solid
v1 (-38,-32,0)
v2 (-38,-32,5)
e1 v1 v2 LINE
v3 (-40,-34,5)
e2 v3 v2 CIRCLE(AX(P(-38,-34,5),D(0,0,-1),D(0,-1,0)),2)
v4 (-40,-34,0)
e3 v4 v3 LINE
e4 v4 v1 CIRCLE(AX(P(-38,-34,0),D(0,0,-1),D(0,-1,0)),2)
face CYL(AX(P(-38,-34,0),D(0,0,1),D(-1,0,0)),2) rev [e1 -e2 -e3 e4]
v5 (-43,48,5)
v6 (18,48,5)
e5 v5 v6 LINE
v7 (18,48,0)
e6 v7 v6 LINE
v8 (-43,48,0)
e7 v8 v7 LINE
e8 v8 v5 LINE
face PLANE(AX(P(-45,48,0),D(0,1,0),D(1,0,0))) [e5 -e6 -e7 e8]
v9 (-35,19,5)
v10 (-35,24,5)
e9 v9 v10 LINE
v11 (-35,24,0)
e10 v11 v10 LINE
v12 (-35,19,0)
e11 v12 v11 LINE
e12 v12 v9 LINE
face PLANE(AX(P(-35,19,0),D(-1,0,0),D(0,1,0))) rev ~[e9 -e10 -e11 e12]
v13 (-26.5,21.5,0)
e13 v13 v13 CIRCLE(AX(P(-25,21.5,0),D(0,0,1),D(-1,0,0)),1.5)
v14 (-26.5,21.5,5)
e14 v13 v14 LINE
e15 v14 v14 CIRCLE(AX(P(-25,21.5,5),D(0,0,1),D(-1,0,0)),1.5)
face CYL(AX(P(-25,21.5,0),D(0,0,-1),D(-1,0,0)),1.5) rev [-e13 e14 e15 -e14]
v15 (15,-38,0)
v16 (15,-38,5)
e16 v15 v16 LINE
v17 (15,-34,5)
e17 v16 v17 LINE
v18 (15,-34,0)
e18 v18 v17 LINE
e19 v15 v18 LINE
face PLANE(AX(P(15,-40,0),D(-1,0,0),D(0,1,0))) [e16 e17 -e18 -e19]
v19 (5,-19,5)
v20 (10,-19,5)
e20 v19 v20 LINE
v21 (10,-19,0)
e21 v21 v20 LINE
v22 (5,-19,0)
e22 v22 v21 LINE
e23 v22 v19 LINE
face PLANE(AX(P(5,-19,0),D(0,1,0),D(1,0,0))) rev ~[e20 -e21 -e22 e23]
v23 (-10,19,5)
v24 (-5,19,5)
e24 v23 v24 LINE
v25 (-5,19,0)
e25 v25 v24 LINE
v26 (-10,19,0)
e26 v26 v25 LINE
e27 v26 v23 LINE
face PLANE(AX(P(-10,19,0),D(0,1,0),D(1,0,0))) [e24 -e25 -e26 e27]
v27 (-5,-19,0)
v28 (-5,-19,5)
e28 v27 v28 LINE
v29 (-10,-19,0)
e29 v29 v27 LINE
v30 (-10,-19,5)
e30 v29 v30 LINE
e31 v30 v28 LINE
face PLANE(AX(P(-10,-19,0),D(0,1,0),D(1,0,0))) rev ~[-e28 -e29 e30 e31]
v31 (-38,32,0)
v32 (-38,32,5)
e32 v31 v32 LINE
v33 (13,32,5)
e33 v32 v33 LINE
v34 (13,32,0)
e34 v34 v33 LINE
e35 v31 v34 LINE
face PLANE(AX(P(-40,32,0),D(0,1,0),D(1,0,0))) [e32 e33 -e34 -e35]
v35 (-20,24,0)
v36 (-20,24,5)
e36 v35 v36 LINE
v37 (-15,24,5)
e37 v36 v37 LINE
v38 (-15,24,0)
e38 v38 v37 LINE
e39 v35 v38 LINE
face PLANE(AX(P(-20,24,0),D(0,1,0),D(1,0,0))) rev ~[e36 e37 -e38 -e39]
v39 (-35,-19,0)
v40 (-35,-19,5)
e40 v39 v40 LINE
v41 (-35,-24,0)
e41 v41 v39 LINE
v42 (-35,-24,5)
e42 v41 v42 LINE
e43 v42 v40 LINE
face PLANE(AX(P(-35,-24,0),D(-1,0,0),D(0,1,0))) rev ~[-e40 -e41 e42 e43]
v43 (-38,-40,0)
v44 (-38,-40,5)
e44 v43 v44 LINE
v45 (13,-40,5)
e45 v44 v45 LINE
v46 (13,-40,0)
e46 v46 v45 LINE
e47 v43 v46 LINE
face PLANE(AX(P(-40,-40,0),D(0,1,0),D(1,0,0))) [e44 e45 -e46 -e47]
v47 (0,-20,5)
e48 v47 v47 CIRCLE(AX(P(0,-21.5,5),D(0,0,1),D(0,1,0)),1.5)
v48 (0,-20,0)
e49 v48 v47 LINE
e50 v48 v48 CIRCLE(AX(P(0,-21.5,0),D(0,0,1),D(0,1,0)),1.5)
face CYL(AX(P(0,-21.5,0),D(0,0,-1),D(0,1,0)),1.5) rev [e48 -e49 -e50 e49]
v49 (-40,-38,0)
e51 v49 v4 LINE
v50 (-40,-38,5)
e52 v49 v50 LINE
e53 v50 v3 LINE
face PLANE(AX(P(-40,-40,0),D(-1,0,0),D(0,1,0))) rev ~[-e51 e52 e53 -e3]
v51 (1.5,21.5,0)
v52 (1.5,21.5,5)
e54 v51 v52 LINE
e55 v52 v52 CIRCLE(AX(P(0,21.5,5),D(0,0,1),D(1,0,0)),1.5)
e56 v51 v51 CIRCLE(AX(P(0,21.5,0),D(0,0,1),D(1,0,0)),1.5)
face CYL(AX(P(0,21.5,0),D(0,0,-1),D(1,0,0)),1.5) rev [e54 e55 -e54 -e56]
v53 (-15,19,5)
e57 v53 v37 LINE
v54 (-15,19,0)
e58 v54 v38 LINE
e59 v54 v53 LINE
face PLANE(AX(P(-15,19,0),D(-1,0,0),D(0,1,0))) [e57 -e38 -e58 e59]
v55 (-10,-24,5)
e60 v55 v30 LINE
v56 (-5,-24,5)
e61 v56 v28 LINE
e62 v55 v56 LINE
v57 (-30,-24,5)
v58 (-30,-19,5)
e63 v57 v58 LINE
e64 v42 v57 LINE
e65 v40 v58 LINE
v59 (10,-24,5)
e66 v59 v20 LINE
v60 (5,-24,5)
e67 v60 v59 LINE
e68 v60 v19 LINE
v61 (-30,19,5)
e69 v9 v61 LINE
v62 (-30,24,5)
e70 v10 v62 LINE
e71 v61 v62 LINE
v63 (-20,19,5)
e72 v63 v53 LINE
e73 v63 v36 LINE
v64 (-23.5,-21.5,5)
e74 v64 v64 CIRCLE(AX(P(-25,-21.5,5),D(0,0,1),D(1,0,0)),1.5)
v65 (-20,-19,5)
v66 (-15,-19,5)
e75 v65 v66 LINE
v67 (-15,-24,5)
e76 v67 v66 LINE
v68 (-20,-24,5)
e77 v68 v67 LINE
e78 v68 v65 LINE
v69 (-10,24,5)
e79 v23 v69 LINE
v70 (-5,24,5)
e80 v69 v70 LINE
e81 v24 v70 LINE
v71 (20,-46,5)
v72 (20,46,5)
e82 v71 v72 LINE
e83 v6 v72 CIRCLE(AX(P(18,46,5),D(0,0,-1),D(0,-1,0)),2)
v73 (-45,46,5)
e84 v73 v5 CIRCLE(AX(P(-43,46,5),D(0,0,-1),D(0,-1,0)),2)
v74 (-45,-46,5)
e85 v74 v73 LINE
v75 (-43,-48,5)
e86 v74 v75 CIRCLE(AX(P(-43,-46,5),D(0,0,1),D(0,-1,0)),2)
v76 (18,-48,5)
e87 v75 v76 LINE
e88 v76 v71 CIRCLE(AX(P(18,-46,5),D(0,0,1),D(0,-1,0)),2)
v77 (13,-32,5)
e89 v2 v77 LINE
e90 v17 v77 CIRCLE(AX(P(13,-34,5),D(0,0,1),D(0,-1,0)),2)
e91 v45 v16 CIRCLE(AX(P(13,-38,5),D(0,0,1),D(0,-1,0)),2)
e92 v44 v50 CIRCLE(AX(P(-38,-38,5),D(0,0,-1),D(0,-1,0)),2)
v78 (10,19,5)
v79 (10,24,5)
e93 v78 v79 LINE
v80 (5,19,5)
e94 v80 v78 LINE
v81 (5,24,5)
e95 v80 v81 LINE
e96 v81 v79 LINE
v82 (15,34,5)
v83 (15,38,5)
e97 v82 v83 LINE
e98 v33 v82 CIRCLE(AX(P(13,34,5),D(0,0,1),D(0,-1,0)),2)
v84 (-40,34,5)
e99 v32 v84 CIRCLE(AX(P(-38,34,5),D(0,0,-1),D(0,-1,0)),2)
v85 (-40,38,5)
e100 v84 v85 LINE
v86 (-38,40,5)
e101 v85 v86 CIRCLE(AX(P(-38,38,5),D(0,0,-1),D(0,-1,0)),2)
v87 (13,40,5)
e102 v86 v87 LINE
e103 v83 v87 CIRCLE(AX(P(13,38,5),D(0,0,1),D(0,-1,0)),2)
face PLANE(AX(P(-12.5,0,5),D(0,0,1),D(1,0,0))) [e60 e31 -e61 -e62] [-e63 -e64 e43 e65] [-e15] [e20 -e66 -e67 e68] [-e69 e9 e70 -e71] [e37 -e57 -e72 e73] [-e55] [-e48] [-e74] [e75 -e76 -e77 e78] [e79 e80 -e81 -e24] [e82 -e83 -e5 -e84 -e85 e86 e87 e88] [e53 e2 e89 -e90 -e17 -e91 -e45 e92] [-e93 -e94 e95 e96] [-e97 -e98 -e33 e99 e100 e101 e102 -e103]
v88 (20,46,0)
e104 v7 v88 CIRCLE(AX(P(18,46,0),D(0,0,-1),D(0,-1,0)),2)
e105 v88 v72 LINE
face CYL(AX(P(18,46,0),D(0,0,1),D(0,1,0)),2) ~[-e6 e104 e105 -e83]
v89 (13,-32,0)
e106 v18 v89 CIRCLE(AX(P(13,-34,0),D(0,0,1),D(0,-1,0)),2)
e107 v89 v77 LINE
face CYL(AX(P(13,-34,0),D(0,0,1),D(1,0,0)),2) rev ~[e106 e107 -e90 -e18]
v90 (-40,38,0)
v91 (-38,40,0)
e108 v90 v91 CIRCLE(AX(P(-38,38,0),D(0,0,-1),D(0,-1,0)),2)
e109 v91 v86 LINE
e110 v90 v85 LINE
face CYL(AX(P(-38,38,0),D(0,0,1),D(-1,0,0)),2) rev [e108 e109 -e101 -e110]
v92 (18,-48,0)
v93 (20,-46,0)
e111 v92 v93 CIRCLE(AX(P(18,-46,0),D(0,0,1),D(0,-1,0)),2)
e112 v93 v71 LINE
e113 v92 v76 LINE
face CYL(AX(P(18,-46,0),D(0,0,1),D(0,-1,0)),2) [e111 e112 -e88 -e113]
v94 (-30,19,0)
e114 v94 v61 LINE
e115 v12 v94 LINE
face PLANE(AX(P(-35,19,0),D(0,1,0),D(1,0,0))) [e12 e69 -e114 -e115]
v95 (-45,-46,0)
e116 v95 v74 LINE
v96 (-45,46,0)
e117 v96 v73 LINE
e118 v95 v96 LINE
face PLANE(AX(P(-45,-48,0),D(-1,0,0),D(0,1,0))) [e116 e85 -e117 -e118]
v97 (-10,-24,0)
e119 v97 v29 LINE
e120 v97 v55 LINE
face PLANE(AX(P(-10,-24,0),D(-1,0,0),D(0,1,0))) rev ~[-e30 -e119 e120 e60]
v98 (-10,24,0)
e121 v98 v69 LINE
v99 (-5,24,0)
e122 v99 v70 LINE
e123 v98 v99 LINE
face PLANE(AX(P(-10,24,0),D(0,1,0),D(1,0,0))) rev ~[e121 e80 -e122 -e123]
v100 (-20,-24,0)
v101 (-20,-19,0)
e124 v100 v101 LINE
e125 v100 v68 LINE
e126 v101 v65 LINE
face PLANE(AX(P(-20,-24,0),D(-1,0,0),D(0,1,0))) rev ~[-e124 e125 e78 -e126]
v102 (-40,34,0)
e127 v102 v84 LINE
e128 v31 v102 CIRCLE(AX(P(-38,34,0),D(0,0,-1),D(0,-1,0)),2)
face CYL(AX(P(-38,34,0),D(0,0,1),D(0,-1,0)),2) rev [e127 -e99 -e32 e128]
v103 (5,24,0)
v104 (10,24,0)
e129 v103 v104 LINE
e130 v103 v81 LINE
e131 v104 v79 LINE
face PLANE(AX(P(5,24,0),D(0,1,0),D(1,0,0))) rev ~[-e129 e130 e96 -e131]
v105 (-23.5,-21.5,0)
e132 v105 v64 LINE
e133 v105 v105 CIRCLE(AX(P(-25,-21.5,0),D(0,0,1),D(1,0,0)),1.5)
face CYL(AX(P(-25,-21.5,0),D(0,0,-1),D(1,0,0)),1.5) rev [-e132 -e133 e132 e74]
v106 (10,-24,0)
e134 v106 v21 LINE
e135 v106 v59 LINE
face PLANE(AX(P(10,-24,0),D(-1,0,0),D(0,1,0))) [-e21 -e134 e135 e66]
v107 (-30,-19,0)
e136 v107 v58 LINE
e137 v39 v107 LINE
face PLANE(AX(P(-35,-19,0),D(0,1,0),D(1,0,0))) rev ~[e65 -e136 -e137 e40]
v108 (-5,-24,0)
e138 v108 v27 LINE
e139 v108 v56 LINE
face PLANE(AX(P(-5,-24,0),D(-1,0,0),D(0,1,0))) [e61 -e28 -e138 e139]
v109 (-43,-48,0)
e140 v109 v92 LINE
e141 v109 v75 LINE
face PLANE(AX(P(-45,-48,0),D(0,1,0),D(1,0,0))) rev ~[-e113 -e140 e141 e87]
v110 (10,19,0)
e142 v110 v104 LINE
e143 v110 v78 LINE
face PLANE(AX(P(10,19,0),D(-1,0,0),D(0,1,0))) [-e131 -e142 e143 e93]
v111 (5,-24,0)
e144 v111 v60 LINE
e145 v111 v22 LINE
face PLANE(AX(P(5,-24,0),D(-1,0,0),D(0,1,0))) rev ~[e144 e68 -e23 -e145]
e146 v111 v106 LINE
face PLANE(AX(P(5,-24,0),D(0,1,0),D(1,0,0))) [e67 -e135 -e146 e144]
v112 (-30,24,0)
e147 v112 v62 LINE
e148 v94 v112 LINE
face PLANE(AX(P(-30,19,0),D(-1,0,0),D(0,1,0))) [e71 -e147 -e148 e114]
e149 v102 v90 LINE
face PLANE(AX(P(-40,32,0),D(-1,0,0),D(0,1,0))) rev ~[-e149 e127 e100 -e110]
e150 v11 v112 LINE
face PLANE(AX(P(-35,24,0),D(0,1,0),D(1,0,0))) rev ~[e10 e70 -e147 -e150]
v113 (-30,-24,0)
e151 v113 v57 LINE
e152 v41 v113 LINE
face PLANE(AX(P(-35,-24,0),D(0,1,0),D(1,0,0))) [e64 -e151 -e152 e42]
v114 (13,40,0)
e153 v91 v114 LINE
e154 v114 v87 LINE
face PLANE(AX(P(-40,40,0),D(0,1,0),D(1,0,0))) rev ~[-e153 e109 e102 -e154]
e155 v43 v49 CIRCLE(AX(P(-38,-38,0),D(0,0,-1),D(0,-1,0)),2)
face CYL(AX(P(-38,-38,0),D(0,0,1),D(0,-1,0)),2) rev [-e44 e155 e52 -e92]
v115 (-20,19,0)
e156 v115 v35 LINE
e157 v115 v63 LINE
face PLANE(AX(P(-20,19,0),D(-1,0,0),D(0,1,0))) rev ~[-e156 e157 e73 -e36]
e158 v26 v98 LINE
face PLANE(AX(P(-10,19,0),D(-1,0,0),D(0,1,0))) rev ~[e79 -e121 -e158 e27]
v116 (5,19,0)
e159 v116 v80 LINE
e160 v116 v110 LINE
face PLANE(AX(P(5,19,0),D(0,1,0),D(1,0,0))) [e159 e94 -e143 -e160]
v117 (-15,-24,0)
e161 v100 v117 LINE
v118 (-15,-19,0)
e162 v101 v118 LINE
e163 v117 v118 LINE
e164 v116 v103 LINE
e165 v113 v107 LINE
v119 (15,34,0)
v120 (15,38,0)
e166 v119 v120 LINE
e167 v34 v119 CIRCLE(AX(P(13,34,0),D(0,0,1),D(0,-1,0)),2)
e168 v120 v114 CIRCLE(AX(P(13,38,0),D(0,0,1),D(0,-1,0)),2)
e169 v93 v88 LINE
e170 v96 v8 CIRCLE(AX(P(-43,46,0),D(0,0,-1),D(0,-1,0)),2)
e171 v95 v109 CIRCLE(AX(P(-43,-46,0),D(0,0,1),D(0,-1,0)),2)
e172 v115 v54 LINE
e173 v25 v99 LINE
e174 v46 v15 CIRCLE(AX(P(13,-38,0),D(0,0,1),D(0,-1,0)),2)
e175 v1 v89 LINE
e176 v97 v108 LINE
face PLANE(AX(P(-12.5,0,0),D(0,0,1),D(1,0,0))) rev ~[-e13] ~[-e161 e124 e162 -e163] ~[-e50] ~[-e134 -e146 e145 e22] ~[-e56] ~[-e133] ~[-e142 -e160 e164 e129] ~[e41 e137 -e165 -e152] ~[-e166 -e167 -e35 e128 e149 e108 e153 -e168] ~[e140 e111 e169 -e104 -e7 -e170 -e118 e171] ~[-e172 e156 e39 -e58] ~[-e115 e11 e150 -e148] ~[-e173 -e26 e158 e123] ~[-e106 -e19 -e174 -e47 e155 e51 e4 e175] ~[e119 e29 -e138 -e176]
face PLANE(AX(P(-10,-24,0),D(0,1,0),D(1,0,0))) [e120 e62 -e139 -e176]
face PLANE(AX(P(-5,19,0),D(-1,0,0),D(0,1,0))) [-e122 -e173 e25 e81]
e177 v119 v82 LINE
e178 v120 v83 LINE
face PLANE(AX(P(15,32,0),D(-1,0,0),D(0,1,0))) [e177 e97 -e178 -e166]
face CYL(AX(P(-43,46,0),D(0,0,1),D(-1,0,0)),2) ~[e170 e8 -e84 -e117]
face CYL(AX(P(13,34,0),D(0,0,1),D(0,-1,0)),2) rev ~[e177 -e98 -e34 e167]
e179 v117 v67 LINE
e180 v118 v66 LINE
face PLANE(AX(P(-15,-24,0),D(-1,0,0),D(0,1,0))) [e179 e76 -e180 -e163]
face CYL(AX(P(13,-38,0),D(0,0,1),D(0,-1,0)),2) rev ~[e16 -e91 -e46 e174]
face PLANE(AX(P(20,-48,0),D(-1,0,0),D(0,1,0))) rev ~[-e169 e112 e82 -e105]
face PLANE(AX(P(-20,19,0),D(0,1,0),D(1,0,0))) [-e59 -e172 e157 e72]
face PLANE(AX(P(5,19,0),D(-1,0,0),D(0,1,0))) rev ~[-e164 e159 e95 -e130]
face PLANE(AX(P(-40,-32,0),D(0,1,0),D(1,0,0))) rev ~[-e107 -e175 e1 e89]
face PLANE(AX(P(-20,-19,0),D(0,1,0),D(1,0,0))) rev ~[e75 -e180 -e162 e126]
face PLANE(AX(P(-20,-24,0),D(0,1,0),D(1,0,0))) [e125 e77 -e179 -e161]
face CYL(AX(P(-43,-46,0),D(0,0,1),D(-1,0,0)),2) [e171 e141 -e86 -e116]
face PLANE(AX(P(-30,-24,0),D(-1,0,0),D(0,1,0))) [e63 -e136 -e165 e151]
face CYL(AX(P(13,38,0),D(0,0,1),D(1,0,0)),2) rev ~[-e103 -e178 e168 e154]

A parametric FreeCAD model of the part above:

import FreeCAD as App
import Part
import Sketcher
from FreeCAD import Vector
Q = App.Units.Quantity


def edges_at(feature, points):
    """Names of the edges that pass closest to the given points."""
    edges = feature.Shape.Edges
    near = lambda p: min(range(len(edges)), key=lambda i: edges[i].distToShape(Part.Vertex(*p))[0])
    return sorted({f"Edge{near(p) + 1}" for p in points})

doc = App.newDocument("Part")
body = doc.addObject("PartDesign::Body", "Body")

# Sketch on XY plane
sketch1 = body.newObject("Sketcher::SketchObject", "Sketch")
sketch1.AttachmentSupport = (doc.getObject("XY_Plane"), [""])
sketch1.MapMode = "FlatFace"
sketch1.addGeometry([
    Part.LineSegment(Vector(-45, 48, 0), Vector(-45, -48, 0)),  # 0
    Part.LineSegment(Vector(-45, -48, 0), Vector(20, -48, 0)),  # 1
    Part.LineSegment(Vector(20, -48, 0), Vector(20, 48, 0)),  # 2
    Part.LineSegment(Vector(20, 48, 0), Vector(-45, 48, 0)),  # 3
    Part.LineSegment(Vector(-30, -24, 0), Vector(-35, -24, 0)),  # 4
    Part.LineSegment(Vector(-35, -24, 0), Vector(-35, -19, 0)),  # 5
    Part.LineSegment(Vector(-35, -19, 0), Vector(-30, -19, 0)),  # 6
    Part.LineSegment(Vector(-30, -19, 0), Vector(-30, -24, 0)),  # 7
    Part.Circle(Vector(-25, -21.5, 0), Vector(0, 0, 1), 1.5),  # 8
    Part.LineSegment(Vector(-15, -24, 0), Vector(-20, -24, 0)),  # 9
    Part.LineSegment(Vector(-20, -24, 0), Vector(-20, -19, 0)),  # 10
    Part.LineSegment(Vector(-20, -19, 0), Vector(-15, -19, 0)),  # 11
    Part.LineSegment(Vector(-15, -19, 0), Vector(-15, -24, 0)),  # 12
    Part.LineSegment(Vector(15, -40, 0), Vector(-40, -40, 0)),  # 13
    Part.LineSegment(Vector(-40, -40, 0), Vector(-40, -32, 0)),  # 14
    Part.LineSegment(Vector(-40, -32, 0), Vector(15, -32, 0)),  # 15
    Part.LineSegment(Vector(15, -32, 0), Vector(15, -40, 0)),  # 16
    Part.LineSegment(Vector(-5, -24, 0), Vector(-10, -24, 0)),  # 17
    Part.LineSegment(Vector(-10, -24, 0), Vector(-10, -19, 0)),  # 18
    Part.LineSegment(Vector(-10, -19, 0), Vector(-5, -19, 0)),  # 19
    Part.LineSegment(Vector(-5, -19, 0), Vector(-5, -24, 0)),  # 20
    Part.Circle(Vector(0, -21.5, 0), Vector(0, 0, 1), 1.5),  # 21
    Part.LineSegment(Vector(10, -24, 0), Vector(5, -24, 0)),  # 22
    Part.LineSegment(Vector(5, -24, 0), Vector(5, -19, 0)),  # 23
    Part.LineSegment(Vector(5, -19, 0), Vector(10, -19, 0)),  # 24
    Part.LineSegment(Vector(10, -19, 0), Vector(10, -24, 0)),  # 25
    Part.LineSegment(Vector(-30, 19, 0), Vector(-35, 19, 0)),  # 26
    Part.LineSegment(Vector(-35, 19, 0), Vector(-35, 24, 0)),  # 27
    Part.LineSegment(Vector(-35, 24, 0), Vector(-30, 24, 0)),  # 28
    Part.LineSegment(Vector(-30, 24, 0), Vector(-30, 19, 0)),  # 29
    Part.Circle(Vector(-25, 21.5, 0), Vector(0, 0, 1), 1.5),  # 30
    Part.LineSegment(Vector(-15, 19, 0), Vector(-20, 19, 0)),  # 31
    Part.LineSegment(Vector(-20, 19, 0), Vector(-20, 24, 0)),  # 32
    Part.LineSegment(Vector(-20, 24, 0), Vector(-15, 24, 0)),  # 33
    Part.LineSegment(Vector(-15, 24, 0), Vector(-15, 19, 0)),  # 34
    Part.LineSegment(Vector(-5, 19, 0), Vector(-10, 19, 0)),  # 35
    Part.LineSegment(Vector(-10, 19, 0), Vector(-10, 24, 0)),  # 36
    Part.LineSegment(Vector(-10, 24, 0), Vector(-5, 24, 0)),  # 37
    Part.LineSegment(Vector(-5, 24, 0), Vector(-5, 19, 0)),  # 38
    Part.Circle(Vector(0, 21.5, 0), Vector(0, 0, 1), 1.5),  # 39
    Part.LineSegment(Vector(15, 32, 0), Vector(-40, 32, 0)),  # 40
    Part.LineSegment(Vector(-40, 32, 0), Vector(-40, 40, 0)),  # 41
    Part.LineSegment(Vector(-40, 40, 0), Vector(15, 40, 0)),  # 42
    Part.LineSegment(Vector(15, 40, 0), Vector(15, 32, 0)),  # 43
    Part.LineSegment(Vector(10, 19, 0), Vector(5, 19, 0)),  # 44
    Part.LineSegment(Vector(5, 19, 0), Vector(5, 24, 0)),  # 45
    Part.LineSegment(Vector(5, 24, 0), Vector(10, 24, 0)),  # 46
    Part.LineSegment(Vector(10, 24, 0), Vector(10, 19, 0)),  # 47
], False)
sketch1.addConstraint([
    Sketcher.Constraint("Coincident", 0, 2, 1, 1),
    Sketcher.Constraint("Coincident", 1, 2, 2, 1),
    Sketcher.Constraint("Coincident", 2, 2, 3, 1),
    Sketcher.Constraint("Coincident", 3, 2, 0, 1),
    Sketcher.Constraint("Coincident", 4, 2, 5, 1),
    Sketcher.Constraint("Coincident", 5, 2, 6, 1),
    Sketcher.Constraint("Coincident", 6, 2, 7, 1),
    Sketcher.Constraint("Coincident", 7, 2, 4, 1),
    Sketcher.Constraint("Coincident", 9, 2, 10, 1),
    Sketcher.Constraint("Coincident", 10, 2, 11, 1),
    Sketcher.Constraint("Coincident", 11, 2, 12, 1),
    Sketcher.Constraint("Coincident", 12, 2, 9, 1),
    Sketcher.Constraint("Coincident", 13, 2, 14, 1),
    Sketcher.Constraint("Coincident", 14, 2, 15, 1),
    Sketcher.Constraint("Coincident", 15, 2, 16, 1),
    Sketcher.Constraint("Coincident", 16, 2, 13, 1),
    Sketcher.Constraint("Coincident", 17, 2, 18, 1),
    Sketcher.Constraint("Coincident", 18, 2, 19, 1),
    Sketcher.Constraint("Coincident", 19, 2, 20, 1),
    Sketcher.Constraint("Coincident", 20, 2, 17, 1),
    Sketcher.Constraint("Coincident", 22, 2, 23, 1),
    Sketcher.Constraint("Coincident", 23, 2, 24, 1),
    Sketcher.Constraint("Coincident", 24, 2, 25, 1),
    Sketcher.Constraint("Coincident", 25, 2, 22, 1),
    Sketcher.Constraint("Coincident", 26, 2, 27, 1),
    Sketcher.Constraint("Coincident", 27, 2, 28, 1),
    Sketcher.Constraint("Coincident", 28, 2, 29, 1),
    Sketcher.Constraint("Coincident", 29, 2, 26, 1),
    Sketcher.Constraint("Coincident", 31, 2, 32, 1),
    Sketcher.Constraint("Coincident", 32, 2, 33, 1),
    Sketcher.Constraint("Coincident", 33, 2, 34, 1),
    Sketcher.Constraint("Coincident", 34, 2, 31, 1),
    Sketcher.Constraint("Coincident", 35, 2, 36, 1),
    Sketcher.Constraint("Coincident", 36, 2, 37, 1),
    Sketcher.Constraint("Coincident", 37, 2, 38, 1),
    Sketcher.Constraint("Coincident", 38, 2, 35, 1),
    Sketcher.Constraint("Coincident", 40, 2, 41, 1),
    Sketcher.Constraint("Coincident", 41, 2, 42, 1),
    Sketcher.Constraint("Coincident", 42, 2, 43, 1),
    Sketcher.Constraint("Coincident", 43, 2, 40, 1),
    Sketcher.Constraint("Coincident", 44, 2, 45, 1),
    Sketcher.Constraint("Coincident", 45, 2, 46, 1),
    Sketcher.Constraint("Coincident", 46, 2, 47, 1),
    Sketcher.Constraint("Coincident", 47, 2, 44, 1),
    Sketcher.Constraint("Vertical", 0),
    Sketcher.Constraint("Horizontal", 1),
    Sketcher.Constraint("Vertical", 2),
    Sketcher.Constraint("Horizontal", 3),
    Sketcher.Constraint("Horizontal", 4),
    Sketcher.Constraint("Vertical", 5),
    Sketcher.Constraint("Horizontal", 6),
    Sketcher.Constraint("Vertical", 7),
    Sketcher.Constraint("Horizontal", 9),
    Sketcher.Constraint("Vertical", 10),
    Sketcher.Constraint("Horizontal", 11),
    Sketcher.Constraint("Vertical", 12),
    Sketcher.Constraint("Horizontal", 13),
    Sketcher.Constraint("Vertical", 14),
    Sketcher.Constraint("Horizontal", 15),
    Sketcher.Constraint("Vertical", 16),
    Sketcher.Constraint("Horizontal", 17),
    Sketcher.Constraint("Vertical", 18),
    Sketcher.Constraint("Horizontal", 19),
    Sketcher.Constraint("Vertical", 20),
    Sketcher.Constraint("Horizontal", 22),
    Sketcher.Constraint("Vertical", 23),
    Sketcher.Constraint("Horizontal", 24),
    Sketcher.Constraint("Vertical", 25),
    Sketcher.Constraint("Horizontal", 26),
    Sketcher.Constraint("Vertical", 27),
    Sketcher.Constraint("Horizontal", 28),
    Sketcher.Constraint("Vertical", 29),
    Sketcher.Constraint("Horizontal", 31),
    Sketcher.Constraint("Vertical", 32),
    Sketcher.Constraint("Horizontal", 33),
    Sketcher.Constraint("Vertical", 34),
    Sketcher.Constraint("Horizontal", 35),
    Sketcher.Constraint("Vertical", 36),
    Sketcher.Constraint("Horizontal", 37),
    Sketcher.Constraint("Vertical", 38),
    Sketcher.Constraint("Horizontal", 40),
    Sketcher.Constraint("Vertical", 41),
    Sketcher.Constraint("Horizontal", 42),
    Sketcher.Constraint("Vertical", 43),
    Sketcher.Constraint("Horizontal", 44),
    Sketcher.Constraint("Vertical", 45),
    Sketcher.Constraint("Horizontal", 46),
    Sketcher.Constraint("Vertical", 47),
    Sketcher.Constraint("Equal", 8, 21),
    Sketcher.Constraint("Equal", 21, 30),
    Sketcher.Constraint("Equal", 30, 39),
    Sketcher.Constraint("Symmetric", 21, 3, 39, 3, -1, 1),
    Sketcher.Constraint("Symmetric", 24, 2, 35, 2, -1, 1),
    Sketcher.Constraint("Symmetric", 22, 2, 37, 2, -1, 1),
    Sketcher.Constraint("Symmetric", 19, 2, 44, 2, -1, 1),
    Sketcher.Constraint("Symmetric", 17, 2, 46, 2, -1, 1),
    Sketcher.Constraint("Symmetric", 20, 2, 22, 2, -2),
    Sketcher.Constraint("Symmetric", 18, 2, 24, 2, -2),
    Sketcher.Constraint("Symmetric", 8, 3, 30, 3, -1),
    Sketcher.Constraint("Symmetric", 5, 2, 26, 2, -1),
    Sketcher.Constraint("Symmetric", 7, 2, 28, 2, -1),
    Sketcher.Constraint("Symmetric", 10, 2, 31, 2, -1),
    Sketcher.Constraint("Symmetric", 12, 2, 33, 2, -1),
    Sketcher.Constraint("Symmetric", 14, 2, 40, 2, -1),
    Sketcher.Constraint("Symmetric", 16, 2, 42, 2, -1),
    Sketcher.Constraint("PointOnObject", 21, 3, -2),
    Sketcher.Constraint("Horizontal", 8, 3, 21, 3),
    Sketcher.Constraint("Horizontal", 7, 2, 9, 2),
    Sketcher.Constraint("Horizontal", 6, 2, 10, 2),
    Sketcher.Constraint("Horizontal", 12, 2, 17, 2),
    Sketcher.Constraint("Horizontal", 11, 2, 18, 2),
    Sketcher.Constraint("Equal", 6, 9),
    Sketcher.Constraint("Equal", 11, 17),
    Sketcher.Constraint("Equal", 46, 5),
    Sketcher.Constraint("Diameter", 8, Q("3 mm")),
    Sketcher.Constraint("DistanceX", 1, 1, 1, 2, Q("65 mm")),
    Sketcher.Constraint("DistanceX", 4, 2, 4, 1, Q("5 mm")),
    Sketcher.Constraint("DistanceX", 13, 2, 13, 1, Q("55 mm")),
    Sketcher.Constraint("DistanceY", 0, 2, 0, 1, Q("96 mm")),
    Sketcher.Constraint("DistanceY", 14, 1, 14, 2, Q("8 mm")),
    Sketcher.Constraint("DistanceX", 8, 3, -1, 1, Q("25 mm")),
    Sketcher.Constraint("DistanceX", 0, 2, -1, 1, Q("45 mm")),
    Sketcher.Constraint("DistanceY", 0, 2, -1, 1, Q("48 mm")),
    Sketcher.Constraint("DistanceX", 4, 2, -1, 1, Q("35 mm")),
    Sketcher.Constraint("DistanceY", 4, 2, -1, 1, Q("24 mm")),
    Sketcher.Constraint("DistanceX", 9, 2, -1, 1, Q("20 mm")),
    Sketcher.Constraint("DistanceX", 13, 2, -1, 1, Q("40 mm")),
    Sketcher.Constraint("DistanceY", 13, 2, -1, 1, Q("40 mm")),
    Sketcher.Constraint("DistanceX", 17, 2, -1, 1, Q("10 mm")),
    Sketcher.Constraint("DistanceY", 8, 3, 30, 3, Q("43 mm")),
])
pad1 = body.newObject("PartDesign::Pad", "Pad")
pad1.Profile = sketch1
pad1.Length = 5
doc.recompute()

fillet = body.newObject("PartDesign::Fillet", "Fillet")
fillet.Base = (pad1, edges_at(pad1, [
    (-40, 40, 2.5),
    (-40, 32, 2.5),
    (15, 32, 2.5),
    (15, 40, 2.5),
    (-40, -40, 2.5),
    (15, -40, 2.5),
    (15, -32, 2.5),
    (-40, -32, 2.5),
    (-45, -48, 2.5),
    (-45, 48, 2.5),
    (20, 48, 2.5),
    (20, -48, 2.5),
]))
fillet.Radius = 2

doc.recompute()
